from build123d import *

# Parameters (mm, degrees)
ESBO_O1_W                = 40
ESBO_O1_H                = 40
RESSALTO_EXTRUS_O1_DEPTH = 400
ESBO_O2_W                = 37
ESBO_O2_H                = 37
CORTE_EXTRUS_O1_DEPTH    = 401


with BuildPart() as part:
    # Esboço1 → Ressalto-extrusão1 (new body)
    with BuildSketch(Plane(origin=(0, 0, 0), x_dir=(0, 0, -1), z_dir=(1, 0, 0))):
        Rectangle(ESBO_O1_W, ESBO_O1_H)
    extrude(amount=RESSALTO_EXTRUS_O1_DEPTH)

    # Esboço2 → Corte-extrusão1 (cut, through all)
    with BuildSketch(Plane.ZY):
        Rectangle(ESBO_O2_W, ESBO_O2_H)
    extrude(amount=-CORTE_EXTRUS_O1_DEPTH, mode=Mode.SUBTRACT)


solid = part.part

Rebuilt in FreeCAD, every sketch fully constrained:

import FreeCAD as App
import Part
import Sketcher

V = App.Vector
Q = App.Units.Quantity

doc = App.newDocument("Part")
body = doc.addObject("PartDesign::Body", "Body")

sketch1 = body.newObject("Sketcher::SketchObject", "Sketch")
sketch1.AttachmentSupport = (doc.getObject("YZ_Plane"), [""])
sketch1.MapMode = "FlatFace"
sketch1.addGeometry([
    Part.LineSegment(V(20, 20, 0), V(-20, 20, 0)),
    Part.LineSegment(V(-20, 20, 0), V(-20, -20, 0)),
    Part.LineSegment(V(-20, -20, 0), V(20, -20, 0)),
    Part.LineSegment(V(20, -20, 0), V(20, 20, 0)),
], False)
sketch1.addConstraint([
    Sketcher.Constraint("Coincident", 0, 2, 1, 1),
    Sketcher.Constraint("Coincident", 1, 2, 2, 1),
    Sketcher.Constraint("Coincident", 2, 2, 3, 1),
    Sketcher.Constraint("Coincident", 3, 2, 0, 1),
    Sketcher.Constraint("Horizontal", 0),
    Sketcher.Constraint("Vertical", 1),
    Sketcher.Constraint("Horizontal", 2),
    Sketcher.Constraint("Vertical", 3),
    Sketcher.Constraint("Symmetric", 0, 2, 2, 2, -1, 1),
    Sketcher.Constraint("Equal", 2, 1),
    Sketcher.Constraint("DistanceX", 0, 2, 0, 1, Q("40 mm")),
])
pad1 = body.newObject("PartDesign::Pad", "Pad")
pad1.Profile = sketch1
pad1.Length = 400

sketch2 = body.newObject("Sketcher::SketchObject", "Sketch001")
sketch2.AttachmentSupport = (doc.getObject("YZ_Plane"), [""])
sketch2.MapMode = "FlatFace"
sketch2.addGeometry([
    Part.LineSegment(V(18, -18, 0), V(-18, -18, 0)),
    Part.LineSegment(V(-18, -18, 0), V(-18, 18, 0)),
    Part.LineSegment(V(-18, 18, 0), V(18, 18, 0)),
    Part.LineSegment(V(18, 18, 0), V(18, -18, 0)),
], False)
sketch2.addConstraint([
    Sketcher.Constraint("Coincident", 0, 2, 1, 1),
    Sketcher.Constraint("Coincident", 1, 2, 2, 1),
    Sketcher.Constraint("Coincident", 2, 2, 3, 1),
    Sketcher.Constraint("Coincident", 3, 2, 0, 1),
    Sketcher.Constraint("Horizontal", 0),
    Sketcher.Constraint("Vertical", 1),
    Sketcher.Constraint("Horizontal", 2),
    Sketcher.Constraint("Vertical", 3),
    Sketcher.Constraint("Symmetric", 0, 2, 2, 2, -1, 1),
    Sketcher.Constraint("Equal", 2, 1),
    Sketcher.Constraint("DistanceX", 0, 2, 0, 1, Q("37 mm")),
])
pocket1 = body.newObject("PartDesign::Pocket", "Pocket")
pocket1.Profile = sketch2
pocket1.Type = "ThroughAll"
pocket1.Reversed = True

doc.recompute()
